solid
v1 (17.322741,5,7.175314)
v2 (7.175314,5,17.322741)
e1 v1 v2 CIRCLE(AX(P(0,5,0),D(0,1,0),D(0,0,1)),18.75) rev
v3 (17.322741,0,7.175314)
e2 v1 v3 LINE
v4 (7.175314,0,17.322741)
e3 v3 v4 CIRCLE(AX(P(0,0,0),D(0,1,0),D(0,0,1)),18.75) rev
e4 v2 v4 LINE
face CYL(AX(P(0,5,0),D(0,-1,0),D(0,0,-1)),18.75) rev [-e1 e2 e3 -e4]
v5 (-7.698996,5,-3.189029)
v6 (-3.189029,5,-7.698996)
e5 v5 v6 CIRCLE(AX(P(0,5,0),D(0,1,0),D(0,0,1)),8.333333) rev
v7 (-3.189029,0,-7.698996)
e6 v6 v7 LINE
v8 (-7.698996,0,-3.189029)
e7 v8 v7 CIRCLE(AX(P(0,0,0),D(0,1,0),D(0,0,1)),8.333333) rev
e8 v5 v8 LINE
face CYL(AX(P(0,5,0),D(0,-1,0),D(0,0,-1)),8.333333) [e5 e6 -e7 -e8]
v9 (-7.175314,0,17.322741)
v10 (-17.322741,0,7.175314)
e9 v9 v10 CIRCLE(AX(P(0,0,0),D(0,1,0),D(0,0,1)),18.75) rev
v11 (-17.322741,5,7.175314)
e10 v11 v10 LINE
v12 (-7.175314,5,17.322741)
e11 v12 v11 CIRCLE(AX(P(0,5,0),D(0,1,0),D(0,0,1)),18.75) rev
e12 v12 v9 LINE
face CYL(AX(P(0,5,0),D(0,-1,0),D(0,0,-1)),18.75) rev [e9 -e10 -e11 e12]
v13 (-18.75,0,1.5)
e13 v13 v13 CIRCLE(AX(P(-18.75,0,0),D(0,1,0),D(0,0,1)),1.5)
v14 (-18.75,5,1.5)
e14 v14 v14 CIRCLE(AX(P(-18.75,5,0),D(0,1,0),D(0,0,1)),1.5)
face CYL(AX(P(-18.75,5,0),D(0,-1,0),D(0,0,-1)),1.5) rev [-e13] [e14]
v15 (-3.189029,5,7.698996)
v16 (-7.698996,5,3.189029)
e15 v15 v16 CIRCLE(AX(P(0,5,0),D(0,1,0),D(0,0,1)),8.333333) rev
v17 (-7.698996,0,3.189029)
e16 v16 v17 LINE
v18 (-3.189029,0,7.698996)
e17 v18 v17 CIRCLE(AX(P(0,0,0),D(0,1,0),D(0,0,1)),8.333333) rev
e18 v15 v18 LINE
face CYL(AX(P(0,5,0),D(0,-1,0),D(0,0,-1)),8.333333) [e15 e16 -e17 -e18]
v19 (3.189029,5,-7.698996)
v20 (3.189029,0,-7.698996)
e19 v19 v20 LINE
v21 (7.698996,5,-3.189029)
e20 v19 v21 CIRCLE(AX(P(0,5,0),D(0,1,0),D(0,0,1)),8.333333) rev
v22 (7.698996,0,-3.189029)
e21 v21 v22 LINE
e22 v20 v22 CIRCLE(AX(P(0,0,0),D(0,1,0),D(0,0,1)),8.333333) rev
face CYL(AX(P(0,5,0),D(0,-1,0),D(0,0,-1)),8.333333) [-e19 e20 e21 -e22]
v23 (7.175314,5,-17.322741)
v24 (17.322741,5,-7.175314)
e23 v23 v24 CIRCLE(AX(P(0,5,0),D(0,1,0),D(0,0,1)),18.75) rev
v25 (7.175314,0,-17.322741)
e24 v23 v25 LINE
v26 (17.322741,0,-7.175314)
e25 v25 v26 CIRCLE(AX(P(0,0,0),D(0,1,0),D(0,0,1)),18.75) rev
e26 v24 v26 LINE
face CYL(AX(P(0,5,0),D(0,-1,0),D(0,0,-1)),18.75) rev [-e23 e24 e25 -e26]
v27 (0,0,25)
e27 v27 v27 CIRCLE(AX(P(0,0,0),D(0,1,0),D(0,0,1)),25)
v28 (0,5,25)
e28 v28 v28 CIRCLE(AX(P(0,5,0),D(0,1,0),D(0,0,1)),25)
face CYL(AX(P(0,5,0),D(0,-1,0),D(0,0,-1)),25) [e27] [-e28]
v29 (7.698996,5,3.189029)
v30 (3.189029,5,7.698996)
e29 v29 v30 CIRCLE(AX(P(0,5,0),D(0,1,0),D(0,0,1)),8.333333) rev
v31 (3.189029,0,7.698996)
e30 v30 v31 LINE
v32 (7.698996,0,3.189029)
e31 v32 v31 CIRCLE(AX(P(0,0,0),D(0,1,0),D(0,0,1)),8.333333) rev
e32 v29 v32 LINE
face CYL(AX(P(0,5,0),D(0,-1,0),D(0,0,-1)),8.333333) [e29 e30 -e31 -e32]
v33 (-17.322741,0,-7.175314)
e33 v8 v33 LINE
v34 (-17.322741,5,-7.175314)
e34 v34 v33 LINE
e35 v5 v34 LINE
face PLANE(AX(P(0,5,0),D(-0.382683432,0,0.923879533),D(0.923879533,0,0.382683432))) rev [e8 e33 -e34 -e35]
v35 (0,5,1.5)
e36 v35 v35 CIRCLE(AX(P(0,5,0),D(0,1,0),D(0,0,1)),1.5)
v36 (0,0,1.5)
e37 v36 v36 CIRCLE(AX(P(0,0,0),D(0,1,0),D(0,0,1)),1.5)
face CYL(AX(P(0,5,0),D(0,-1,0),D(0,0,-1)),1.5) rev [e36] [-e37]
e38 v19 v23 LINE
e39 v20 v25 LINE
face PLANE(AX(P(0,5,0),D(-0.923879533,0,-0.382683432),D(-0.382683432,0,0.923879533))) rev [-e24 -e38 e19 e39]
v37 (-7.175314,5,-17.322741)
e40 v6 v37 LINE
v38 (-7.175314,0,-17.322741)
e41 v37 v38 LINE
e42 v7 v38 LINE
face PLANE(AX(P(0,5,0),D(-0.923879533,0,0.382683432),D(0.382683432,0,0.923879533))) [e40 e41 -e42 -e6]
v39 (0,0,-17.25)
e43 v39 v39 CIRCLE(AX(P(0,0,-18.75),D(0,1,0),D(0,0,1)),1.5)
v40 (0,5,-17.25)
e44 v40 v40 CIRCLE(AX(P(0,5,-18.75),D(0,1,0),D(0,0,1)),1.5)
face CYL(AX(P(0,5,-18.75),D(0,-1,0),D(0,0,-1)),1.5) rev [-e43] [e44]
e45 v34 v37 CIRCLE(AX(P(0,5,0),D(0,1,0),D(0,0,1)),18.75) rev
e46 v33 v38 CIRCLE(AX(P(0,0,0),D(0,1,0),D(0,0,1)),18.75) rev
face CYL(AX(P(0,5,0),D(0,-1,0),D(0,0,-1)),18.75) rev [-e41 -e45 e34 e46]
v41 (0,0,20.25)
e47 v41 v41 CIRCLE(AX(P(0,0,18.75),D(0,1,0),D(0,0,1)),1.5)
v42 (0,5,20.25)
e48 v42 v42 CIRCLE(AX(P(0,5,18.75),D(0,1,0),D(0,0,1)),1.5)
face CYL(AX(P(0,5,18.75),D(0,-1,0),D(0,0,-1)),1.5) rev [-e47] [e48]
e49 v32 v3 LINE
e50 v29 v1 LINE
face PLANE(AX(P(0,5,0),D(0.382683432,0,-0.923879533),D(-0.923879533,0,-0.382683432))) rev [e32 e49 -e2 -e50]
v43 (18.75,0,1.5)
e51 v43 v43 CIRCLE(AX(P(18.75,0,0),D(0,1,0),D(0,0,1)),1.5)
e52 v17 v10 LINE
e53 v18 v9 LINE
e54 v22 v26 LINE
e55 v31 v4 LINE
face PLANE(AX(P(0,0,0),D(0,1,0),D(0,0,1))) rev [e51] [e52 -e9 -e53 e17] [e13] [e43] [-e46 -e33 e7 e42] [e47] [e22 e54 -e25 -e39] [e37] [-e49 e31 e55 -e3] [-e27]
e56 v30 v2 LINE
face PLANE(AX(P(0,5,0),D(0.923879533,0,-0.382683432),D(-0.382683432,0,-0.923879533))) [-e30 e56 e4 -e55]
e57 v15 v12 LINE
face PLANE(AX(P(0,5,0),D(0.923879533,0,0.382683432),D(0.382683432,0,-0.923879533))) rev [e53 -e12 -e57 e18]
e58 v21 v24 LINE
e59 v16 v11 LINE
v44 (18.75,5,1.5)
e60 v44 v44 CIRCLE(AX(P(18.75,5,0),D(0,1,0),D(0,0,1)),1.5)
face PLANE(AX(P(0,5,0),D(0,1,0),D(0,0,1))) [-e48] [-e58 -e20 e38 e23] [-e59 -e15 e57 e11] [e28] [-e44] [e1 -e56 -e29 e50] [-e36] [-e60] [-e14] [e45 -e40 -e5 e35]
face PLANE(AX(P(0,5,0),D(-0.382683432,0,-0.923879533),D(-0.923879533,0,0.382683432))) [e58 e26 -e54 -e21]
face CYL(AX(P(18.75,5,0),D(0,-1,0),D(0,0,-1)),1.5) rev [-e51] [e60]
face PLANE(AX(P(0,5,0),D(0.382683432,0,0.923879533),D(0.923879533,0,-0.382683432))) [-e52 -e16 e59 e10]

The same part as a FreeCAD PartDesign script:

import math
import FreeCAD as App
import Part
import Sketcher
from FreeCAD import Vector
Q = App.Units.Quantity

doc = App.newDocument("Part")
body = doc.addObject("PartDesign::Body", "Body")

sketch1 = body.newObject("Sketcher::SketchObject", "Sketch")
sketch1.AttachmentSupport = (doc.getObject("XZ_Plane"), [""])
sketch1.MapMode = "FlatFace"
sketch1.addGeometry(Part.Circle(Vector(0, 0, 0), Vector(0, 0, 1), 25), False)
sketch1.addGeometry(Part.LineSegment(Vector(-17.3, 7.2, 0), Vector(-7.7, 3.2, 0)), False)
sketch1.addGeometry(Part.ArcOfCircle(Part.Circle(Vector(0, 0, 0), Vector(0, 0, 1), 8.3), math.radians(112), math.radians(158)), False)
sketch1.addGeometry(Part.LineSegment(Vector(-3.2, 7.7, 0), Vector(-7.2, 17.3, 0)), False)
sketch1.addGeometry(Part.ArcOfCircle(Part.Circle(Vector(0, 0, 0), Vector(0, 0, 1), 18.8), math.radians(113), math.radians(157)), False)
sketch1.addGeometry(Part.Circle(Vector(0, 18.8, 0), Vector(0, 0, 1), 1.5), False)
sketch1.addGeometry(Part.LineSegment(Vector(7.2, 17.3, 0), Vector(3.2, 7.7, 0)), False)
sketch1.addGeometry(Part.ArcOfCircle(Part.Circle(Vector(0, 0, 0), Vector(0, 0, 1), 8.3), math.radians(22), math.radians(68)), False)
sketch1.addGeometry(Part.LineSegment(Vector(7.7, 3.2, 0), Vector(17.3, 7.2, 0)), False)
sketch1.addGeometry(Part.ArcOfCircle(Part.Circle(Vector(0, 0, 0), Vector(0, 0, 1), 18.8), math.radians(23), math.radians(67)), False)
sketch1.addGeometry(Part.Circle(Vector(-18.8, 0, 0), Vector(0, 0, 1), 1.5), False)
sketch1.addGeometry(Part.ArcOfCircle(Part.Circle(Vector(0, 0, 0), Vector(0, 0, 1), 8.3), math.radians(-158), math.radians(-112)), False)
sketch1.addGeometry(Part.LineSegment(Vector(-7.7, -3.2, 0), Vector(-17.3, -7.2, 0)), False)
sketch1.addGeometry(Part.ArcOfCircle(Part.Circle(Vector(0, 0, 0), Vector(0, 0, 1), 18.8), math.radians(-157), math.radians(-113)), False)
sketch1.addGeometry(Part.LineSegment(Vector(-7.2, -17.3, 0), Vector(-3.2, -7.7, 0)), False)
sketch1.addGeometry(Part.Circle(Vector(0, 0, 0), Vector(0, 0, 1), 1.5), False)
sketch1.addGeometry(Part.Circle(Vector(18.8, 0, 0), Vector(0, 0, 1), 1.5), False)
sketch1.addGeometry(Part.Circle(Vector(0, -18.8, 0), Vector(0, 0, 1), 1.5), False)
sketch1.addGeometry(Part.LineSegment(Vector(17.3, -7.2, 0), Vector(7.7, -3.2, 0)), False)
sketch1.addGeometry(Part.ArcOfCircle(Part.Circle(Vector(0, 0, 0), Vector(0, 0, 1), 8.3), math.radians(-68), math.radians(-22)), False)
sketch1.addGeometry(Part.LineSegment(Vector(3.2, -7.7, 0), Vector(7.2, -17.3, 0)), False)
sketch1.addGeometry(Part.ArcOfCircle(Part.Circle(Vector(0, 0, 0), Vector(0, 0, 1), 18.8), math.radians(-67), math.radians(-23)), False)
sketch1.addConstraint(Sketcher.Constraint("Coincident", 1, 2, 2, 2))
sketch1.addConstraint(Sketcher.Constraint("Coincident", 2, 1, 3, 1))
sketch1.addConstraint(Sketcher.Constraint("Coincident", 3, 2, 4, 1))
sketch1.addConstraint(Sketcher.Constraint("Coincident", 4, 2, 1, 1))
sketch1.addConstraint(Sketcher.Constraint("Coincident", 6, 2, 7, 2))
sketch1.addConstraint(Sketcher.Constraint("Coincident", 7, 1, 8, 1))
sketch1.addConstraint(Sketcher.Constraint("Coincident", 8, 2, 9, 1))
sketch1.addConstraint(Sketcher.Constraint("Coincident", 9, 2, 6, 1))
sketch1.addConstraint(Sketcher.Constraint("Coincident", 11, 1, 12, 1))
sketch1.addConstraint(Sketcher.Constraint("Coincident", 12, 2, 13, 1))
sketch1.addConstraint(Sketcher.Constraint("Coincident", 13, 2, 14, 1))
sketch1.addConstraint(Sketcher.Constraint("Coincident", 14, 2, 11, 2))
sketch1.addConstraint(Sketcher.Constraint("Coincident", 18, 2, 19, 2))
sketch1.addConstraint(Sketcher.Constraint("Coincident", 19, 1, 20, 1))
sketch1.addConstraint(Sketcher.Constraint("Coincident", 20, 2, 21, 1))
sketch1.addConstraint(Sketcher.Constraint("Coincident", 21, 2, 18, 1))
sketch1.addConstraint(Sketcher.Constraint("Coincident", 0, 3, -1, 1))
sketch1.addConstraint(Sketcher.Constraint("Coincident", 2, 3, -1, 1))
sketch1.addConstraint(Sketcher.Constraint("Coincident", 4, 3, -1, 1))
sketch1.addConstraint(Sketcher.Constraint("Coincident", 7, 3, -1, 1))
sketch1.addConstraint(Sketcher.Constraint("Coincident", 9, 3, -1, 1))
sketch1.addConstraint(Sketcher.Constraint("Coincident", 11, 3, -1, 1))
sketch1.addConstraint(Sketcher.Constraint("Coincident", 13, 3, -1, 1))
sketch1.addConstraint(Sketcher.Constraint("Coincident", 15, 3, -1, 1))
sketch1.addConstraint(Sketcher.Constraint("Coincident", 19, 3, -1, 1))
sketch1.addConstraint(Sketcher.Constraint("Coincident", 21, 3, -1, 1))
sketch1.addConstraint(Sketcher.Constraint("Equal", 2, 7))
sketch1.addConstraint(Sketcher.Constraint("Equal", 4, 9))
sketch1.addConstraint(Sketcher.Constraint("Equal", 5, 10))
sketch1.addConstraint(Sketcher.Constraint("Equal", 7, 11))
sketch1.addConstraint(Sketcher.Constraint("Equal", 9, 13))
sketch1.addConstraint(Sketcher.Constraint("Equal", 10, 15))
sketch1.addConstraint(Sketcher.Constraint("Equal", 15, 16))
sketch1.addConstraint(Sketcher.Constraint("Equal", 16, 17))
sketch1.addConstraint(Sketcher.Constraint("Equal", 11, 19))
sketch1.addConstraint(Sketcher.Constraint("Equal", 13, 21))
sketch1.addConstraint(Sketcher.Constraint("Symmetric", 10, 3, 16, 3, -1, 1))
sketch1.addConstraint(Sketcher.Constraint("Symmetric", 5, 3, 17, 3, -1, 1))
sketch1.addConstraint(Sketcher.Constraint("PointOnObject", 5, 3, -2))
sketch1.addConstraint(Sketcher.Constraint("PointOnObject", 10, 3, -1))
sketch1.addConstraint(Sketcher.Constraint("Perpendicular", 1, 6))
sketch1.addConstraint(Sketcher.Constraint("Perpendicular", 3, 8))
sketch1.addConstraint(Sketcher.Constraint("Parallel", 8, 12))
sketch1.addConstraint(Sketcher.Constraint("Parallel", 6, 14))
sketch1.addConstraint(Sketcher.Constraint("Perpendicular", 14, 18))
sketch1.addConstraint(Sketcher.Constraint("Perpendicular", 12, 20))
sketch1.addConstraint(Sketcher.Constraint("Horizontal", 2, 1, 6, 2))
sketch1.addConstraint(Sketcher.Constraint("Horizontal", 1, 2, 7, 1))
sketch1.addConstraint(Sketcher.Constraint("Horizontal", 4, 2, 8, 2))
sketch1.addConstraint(Sketcher.Constraint("Horizontal", 11, 1, 18, 2))
sketch1.addConstraint(Sketcher.Constraint("Horizontal", 14, 2, 19, 1))
sketch1.addConstraint(Sketcher.Constraint("Vertical", 1, 2, 11, 1))
sketch1.addConstraint(Sketcher.Constraint("Vertical", 3, 2, 13, 2))
sketch1.addConstraint(Sketcher.Constraint("Diameter", 0, Q("50 mm")))
sketch1.addConstraint(Sketcher.Constraint("Diameter", 5, Q("3 mm")))
sketch1.addConstraint(Sketcher.Constraint("Radius", 4, Q("18.75 mm")))
sketch1.addConstraint(Sketcher.Constraint("Angle", 1, Q("-22.5 deg")))
sketch1.addConstraint(Sketcher.Constraint("DistanceY", -1, 1, 5, 3, Q("18.75 mm")))
sketch1.addConstraint(Sketcher.Constraint("DistanceX", 10, 3, -1, 1, Q("18.75 mm")))
sketch1.addConstraint(Sketcher.Constraint("Radius", 2, Q("8.333333 mm")))
sketch1.addConstraint(Sketcher.Constraint("DistanceY", -1, 1, 1, 2, Q("3.189029 mm")))
sketch1.addConstraint(Sketcher.Constraint("DistanceX", 2, 1, -1, 1, Q("3.189029 mm")))
pad1 = body.newObject("PartDesign::Pad", "Pad")
pad1.Profile = sketch1
pad1.Length = 5
pad1.Reversed = True

doc.recompute()
